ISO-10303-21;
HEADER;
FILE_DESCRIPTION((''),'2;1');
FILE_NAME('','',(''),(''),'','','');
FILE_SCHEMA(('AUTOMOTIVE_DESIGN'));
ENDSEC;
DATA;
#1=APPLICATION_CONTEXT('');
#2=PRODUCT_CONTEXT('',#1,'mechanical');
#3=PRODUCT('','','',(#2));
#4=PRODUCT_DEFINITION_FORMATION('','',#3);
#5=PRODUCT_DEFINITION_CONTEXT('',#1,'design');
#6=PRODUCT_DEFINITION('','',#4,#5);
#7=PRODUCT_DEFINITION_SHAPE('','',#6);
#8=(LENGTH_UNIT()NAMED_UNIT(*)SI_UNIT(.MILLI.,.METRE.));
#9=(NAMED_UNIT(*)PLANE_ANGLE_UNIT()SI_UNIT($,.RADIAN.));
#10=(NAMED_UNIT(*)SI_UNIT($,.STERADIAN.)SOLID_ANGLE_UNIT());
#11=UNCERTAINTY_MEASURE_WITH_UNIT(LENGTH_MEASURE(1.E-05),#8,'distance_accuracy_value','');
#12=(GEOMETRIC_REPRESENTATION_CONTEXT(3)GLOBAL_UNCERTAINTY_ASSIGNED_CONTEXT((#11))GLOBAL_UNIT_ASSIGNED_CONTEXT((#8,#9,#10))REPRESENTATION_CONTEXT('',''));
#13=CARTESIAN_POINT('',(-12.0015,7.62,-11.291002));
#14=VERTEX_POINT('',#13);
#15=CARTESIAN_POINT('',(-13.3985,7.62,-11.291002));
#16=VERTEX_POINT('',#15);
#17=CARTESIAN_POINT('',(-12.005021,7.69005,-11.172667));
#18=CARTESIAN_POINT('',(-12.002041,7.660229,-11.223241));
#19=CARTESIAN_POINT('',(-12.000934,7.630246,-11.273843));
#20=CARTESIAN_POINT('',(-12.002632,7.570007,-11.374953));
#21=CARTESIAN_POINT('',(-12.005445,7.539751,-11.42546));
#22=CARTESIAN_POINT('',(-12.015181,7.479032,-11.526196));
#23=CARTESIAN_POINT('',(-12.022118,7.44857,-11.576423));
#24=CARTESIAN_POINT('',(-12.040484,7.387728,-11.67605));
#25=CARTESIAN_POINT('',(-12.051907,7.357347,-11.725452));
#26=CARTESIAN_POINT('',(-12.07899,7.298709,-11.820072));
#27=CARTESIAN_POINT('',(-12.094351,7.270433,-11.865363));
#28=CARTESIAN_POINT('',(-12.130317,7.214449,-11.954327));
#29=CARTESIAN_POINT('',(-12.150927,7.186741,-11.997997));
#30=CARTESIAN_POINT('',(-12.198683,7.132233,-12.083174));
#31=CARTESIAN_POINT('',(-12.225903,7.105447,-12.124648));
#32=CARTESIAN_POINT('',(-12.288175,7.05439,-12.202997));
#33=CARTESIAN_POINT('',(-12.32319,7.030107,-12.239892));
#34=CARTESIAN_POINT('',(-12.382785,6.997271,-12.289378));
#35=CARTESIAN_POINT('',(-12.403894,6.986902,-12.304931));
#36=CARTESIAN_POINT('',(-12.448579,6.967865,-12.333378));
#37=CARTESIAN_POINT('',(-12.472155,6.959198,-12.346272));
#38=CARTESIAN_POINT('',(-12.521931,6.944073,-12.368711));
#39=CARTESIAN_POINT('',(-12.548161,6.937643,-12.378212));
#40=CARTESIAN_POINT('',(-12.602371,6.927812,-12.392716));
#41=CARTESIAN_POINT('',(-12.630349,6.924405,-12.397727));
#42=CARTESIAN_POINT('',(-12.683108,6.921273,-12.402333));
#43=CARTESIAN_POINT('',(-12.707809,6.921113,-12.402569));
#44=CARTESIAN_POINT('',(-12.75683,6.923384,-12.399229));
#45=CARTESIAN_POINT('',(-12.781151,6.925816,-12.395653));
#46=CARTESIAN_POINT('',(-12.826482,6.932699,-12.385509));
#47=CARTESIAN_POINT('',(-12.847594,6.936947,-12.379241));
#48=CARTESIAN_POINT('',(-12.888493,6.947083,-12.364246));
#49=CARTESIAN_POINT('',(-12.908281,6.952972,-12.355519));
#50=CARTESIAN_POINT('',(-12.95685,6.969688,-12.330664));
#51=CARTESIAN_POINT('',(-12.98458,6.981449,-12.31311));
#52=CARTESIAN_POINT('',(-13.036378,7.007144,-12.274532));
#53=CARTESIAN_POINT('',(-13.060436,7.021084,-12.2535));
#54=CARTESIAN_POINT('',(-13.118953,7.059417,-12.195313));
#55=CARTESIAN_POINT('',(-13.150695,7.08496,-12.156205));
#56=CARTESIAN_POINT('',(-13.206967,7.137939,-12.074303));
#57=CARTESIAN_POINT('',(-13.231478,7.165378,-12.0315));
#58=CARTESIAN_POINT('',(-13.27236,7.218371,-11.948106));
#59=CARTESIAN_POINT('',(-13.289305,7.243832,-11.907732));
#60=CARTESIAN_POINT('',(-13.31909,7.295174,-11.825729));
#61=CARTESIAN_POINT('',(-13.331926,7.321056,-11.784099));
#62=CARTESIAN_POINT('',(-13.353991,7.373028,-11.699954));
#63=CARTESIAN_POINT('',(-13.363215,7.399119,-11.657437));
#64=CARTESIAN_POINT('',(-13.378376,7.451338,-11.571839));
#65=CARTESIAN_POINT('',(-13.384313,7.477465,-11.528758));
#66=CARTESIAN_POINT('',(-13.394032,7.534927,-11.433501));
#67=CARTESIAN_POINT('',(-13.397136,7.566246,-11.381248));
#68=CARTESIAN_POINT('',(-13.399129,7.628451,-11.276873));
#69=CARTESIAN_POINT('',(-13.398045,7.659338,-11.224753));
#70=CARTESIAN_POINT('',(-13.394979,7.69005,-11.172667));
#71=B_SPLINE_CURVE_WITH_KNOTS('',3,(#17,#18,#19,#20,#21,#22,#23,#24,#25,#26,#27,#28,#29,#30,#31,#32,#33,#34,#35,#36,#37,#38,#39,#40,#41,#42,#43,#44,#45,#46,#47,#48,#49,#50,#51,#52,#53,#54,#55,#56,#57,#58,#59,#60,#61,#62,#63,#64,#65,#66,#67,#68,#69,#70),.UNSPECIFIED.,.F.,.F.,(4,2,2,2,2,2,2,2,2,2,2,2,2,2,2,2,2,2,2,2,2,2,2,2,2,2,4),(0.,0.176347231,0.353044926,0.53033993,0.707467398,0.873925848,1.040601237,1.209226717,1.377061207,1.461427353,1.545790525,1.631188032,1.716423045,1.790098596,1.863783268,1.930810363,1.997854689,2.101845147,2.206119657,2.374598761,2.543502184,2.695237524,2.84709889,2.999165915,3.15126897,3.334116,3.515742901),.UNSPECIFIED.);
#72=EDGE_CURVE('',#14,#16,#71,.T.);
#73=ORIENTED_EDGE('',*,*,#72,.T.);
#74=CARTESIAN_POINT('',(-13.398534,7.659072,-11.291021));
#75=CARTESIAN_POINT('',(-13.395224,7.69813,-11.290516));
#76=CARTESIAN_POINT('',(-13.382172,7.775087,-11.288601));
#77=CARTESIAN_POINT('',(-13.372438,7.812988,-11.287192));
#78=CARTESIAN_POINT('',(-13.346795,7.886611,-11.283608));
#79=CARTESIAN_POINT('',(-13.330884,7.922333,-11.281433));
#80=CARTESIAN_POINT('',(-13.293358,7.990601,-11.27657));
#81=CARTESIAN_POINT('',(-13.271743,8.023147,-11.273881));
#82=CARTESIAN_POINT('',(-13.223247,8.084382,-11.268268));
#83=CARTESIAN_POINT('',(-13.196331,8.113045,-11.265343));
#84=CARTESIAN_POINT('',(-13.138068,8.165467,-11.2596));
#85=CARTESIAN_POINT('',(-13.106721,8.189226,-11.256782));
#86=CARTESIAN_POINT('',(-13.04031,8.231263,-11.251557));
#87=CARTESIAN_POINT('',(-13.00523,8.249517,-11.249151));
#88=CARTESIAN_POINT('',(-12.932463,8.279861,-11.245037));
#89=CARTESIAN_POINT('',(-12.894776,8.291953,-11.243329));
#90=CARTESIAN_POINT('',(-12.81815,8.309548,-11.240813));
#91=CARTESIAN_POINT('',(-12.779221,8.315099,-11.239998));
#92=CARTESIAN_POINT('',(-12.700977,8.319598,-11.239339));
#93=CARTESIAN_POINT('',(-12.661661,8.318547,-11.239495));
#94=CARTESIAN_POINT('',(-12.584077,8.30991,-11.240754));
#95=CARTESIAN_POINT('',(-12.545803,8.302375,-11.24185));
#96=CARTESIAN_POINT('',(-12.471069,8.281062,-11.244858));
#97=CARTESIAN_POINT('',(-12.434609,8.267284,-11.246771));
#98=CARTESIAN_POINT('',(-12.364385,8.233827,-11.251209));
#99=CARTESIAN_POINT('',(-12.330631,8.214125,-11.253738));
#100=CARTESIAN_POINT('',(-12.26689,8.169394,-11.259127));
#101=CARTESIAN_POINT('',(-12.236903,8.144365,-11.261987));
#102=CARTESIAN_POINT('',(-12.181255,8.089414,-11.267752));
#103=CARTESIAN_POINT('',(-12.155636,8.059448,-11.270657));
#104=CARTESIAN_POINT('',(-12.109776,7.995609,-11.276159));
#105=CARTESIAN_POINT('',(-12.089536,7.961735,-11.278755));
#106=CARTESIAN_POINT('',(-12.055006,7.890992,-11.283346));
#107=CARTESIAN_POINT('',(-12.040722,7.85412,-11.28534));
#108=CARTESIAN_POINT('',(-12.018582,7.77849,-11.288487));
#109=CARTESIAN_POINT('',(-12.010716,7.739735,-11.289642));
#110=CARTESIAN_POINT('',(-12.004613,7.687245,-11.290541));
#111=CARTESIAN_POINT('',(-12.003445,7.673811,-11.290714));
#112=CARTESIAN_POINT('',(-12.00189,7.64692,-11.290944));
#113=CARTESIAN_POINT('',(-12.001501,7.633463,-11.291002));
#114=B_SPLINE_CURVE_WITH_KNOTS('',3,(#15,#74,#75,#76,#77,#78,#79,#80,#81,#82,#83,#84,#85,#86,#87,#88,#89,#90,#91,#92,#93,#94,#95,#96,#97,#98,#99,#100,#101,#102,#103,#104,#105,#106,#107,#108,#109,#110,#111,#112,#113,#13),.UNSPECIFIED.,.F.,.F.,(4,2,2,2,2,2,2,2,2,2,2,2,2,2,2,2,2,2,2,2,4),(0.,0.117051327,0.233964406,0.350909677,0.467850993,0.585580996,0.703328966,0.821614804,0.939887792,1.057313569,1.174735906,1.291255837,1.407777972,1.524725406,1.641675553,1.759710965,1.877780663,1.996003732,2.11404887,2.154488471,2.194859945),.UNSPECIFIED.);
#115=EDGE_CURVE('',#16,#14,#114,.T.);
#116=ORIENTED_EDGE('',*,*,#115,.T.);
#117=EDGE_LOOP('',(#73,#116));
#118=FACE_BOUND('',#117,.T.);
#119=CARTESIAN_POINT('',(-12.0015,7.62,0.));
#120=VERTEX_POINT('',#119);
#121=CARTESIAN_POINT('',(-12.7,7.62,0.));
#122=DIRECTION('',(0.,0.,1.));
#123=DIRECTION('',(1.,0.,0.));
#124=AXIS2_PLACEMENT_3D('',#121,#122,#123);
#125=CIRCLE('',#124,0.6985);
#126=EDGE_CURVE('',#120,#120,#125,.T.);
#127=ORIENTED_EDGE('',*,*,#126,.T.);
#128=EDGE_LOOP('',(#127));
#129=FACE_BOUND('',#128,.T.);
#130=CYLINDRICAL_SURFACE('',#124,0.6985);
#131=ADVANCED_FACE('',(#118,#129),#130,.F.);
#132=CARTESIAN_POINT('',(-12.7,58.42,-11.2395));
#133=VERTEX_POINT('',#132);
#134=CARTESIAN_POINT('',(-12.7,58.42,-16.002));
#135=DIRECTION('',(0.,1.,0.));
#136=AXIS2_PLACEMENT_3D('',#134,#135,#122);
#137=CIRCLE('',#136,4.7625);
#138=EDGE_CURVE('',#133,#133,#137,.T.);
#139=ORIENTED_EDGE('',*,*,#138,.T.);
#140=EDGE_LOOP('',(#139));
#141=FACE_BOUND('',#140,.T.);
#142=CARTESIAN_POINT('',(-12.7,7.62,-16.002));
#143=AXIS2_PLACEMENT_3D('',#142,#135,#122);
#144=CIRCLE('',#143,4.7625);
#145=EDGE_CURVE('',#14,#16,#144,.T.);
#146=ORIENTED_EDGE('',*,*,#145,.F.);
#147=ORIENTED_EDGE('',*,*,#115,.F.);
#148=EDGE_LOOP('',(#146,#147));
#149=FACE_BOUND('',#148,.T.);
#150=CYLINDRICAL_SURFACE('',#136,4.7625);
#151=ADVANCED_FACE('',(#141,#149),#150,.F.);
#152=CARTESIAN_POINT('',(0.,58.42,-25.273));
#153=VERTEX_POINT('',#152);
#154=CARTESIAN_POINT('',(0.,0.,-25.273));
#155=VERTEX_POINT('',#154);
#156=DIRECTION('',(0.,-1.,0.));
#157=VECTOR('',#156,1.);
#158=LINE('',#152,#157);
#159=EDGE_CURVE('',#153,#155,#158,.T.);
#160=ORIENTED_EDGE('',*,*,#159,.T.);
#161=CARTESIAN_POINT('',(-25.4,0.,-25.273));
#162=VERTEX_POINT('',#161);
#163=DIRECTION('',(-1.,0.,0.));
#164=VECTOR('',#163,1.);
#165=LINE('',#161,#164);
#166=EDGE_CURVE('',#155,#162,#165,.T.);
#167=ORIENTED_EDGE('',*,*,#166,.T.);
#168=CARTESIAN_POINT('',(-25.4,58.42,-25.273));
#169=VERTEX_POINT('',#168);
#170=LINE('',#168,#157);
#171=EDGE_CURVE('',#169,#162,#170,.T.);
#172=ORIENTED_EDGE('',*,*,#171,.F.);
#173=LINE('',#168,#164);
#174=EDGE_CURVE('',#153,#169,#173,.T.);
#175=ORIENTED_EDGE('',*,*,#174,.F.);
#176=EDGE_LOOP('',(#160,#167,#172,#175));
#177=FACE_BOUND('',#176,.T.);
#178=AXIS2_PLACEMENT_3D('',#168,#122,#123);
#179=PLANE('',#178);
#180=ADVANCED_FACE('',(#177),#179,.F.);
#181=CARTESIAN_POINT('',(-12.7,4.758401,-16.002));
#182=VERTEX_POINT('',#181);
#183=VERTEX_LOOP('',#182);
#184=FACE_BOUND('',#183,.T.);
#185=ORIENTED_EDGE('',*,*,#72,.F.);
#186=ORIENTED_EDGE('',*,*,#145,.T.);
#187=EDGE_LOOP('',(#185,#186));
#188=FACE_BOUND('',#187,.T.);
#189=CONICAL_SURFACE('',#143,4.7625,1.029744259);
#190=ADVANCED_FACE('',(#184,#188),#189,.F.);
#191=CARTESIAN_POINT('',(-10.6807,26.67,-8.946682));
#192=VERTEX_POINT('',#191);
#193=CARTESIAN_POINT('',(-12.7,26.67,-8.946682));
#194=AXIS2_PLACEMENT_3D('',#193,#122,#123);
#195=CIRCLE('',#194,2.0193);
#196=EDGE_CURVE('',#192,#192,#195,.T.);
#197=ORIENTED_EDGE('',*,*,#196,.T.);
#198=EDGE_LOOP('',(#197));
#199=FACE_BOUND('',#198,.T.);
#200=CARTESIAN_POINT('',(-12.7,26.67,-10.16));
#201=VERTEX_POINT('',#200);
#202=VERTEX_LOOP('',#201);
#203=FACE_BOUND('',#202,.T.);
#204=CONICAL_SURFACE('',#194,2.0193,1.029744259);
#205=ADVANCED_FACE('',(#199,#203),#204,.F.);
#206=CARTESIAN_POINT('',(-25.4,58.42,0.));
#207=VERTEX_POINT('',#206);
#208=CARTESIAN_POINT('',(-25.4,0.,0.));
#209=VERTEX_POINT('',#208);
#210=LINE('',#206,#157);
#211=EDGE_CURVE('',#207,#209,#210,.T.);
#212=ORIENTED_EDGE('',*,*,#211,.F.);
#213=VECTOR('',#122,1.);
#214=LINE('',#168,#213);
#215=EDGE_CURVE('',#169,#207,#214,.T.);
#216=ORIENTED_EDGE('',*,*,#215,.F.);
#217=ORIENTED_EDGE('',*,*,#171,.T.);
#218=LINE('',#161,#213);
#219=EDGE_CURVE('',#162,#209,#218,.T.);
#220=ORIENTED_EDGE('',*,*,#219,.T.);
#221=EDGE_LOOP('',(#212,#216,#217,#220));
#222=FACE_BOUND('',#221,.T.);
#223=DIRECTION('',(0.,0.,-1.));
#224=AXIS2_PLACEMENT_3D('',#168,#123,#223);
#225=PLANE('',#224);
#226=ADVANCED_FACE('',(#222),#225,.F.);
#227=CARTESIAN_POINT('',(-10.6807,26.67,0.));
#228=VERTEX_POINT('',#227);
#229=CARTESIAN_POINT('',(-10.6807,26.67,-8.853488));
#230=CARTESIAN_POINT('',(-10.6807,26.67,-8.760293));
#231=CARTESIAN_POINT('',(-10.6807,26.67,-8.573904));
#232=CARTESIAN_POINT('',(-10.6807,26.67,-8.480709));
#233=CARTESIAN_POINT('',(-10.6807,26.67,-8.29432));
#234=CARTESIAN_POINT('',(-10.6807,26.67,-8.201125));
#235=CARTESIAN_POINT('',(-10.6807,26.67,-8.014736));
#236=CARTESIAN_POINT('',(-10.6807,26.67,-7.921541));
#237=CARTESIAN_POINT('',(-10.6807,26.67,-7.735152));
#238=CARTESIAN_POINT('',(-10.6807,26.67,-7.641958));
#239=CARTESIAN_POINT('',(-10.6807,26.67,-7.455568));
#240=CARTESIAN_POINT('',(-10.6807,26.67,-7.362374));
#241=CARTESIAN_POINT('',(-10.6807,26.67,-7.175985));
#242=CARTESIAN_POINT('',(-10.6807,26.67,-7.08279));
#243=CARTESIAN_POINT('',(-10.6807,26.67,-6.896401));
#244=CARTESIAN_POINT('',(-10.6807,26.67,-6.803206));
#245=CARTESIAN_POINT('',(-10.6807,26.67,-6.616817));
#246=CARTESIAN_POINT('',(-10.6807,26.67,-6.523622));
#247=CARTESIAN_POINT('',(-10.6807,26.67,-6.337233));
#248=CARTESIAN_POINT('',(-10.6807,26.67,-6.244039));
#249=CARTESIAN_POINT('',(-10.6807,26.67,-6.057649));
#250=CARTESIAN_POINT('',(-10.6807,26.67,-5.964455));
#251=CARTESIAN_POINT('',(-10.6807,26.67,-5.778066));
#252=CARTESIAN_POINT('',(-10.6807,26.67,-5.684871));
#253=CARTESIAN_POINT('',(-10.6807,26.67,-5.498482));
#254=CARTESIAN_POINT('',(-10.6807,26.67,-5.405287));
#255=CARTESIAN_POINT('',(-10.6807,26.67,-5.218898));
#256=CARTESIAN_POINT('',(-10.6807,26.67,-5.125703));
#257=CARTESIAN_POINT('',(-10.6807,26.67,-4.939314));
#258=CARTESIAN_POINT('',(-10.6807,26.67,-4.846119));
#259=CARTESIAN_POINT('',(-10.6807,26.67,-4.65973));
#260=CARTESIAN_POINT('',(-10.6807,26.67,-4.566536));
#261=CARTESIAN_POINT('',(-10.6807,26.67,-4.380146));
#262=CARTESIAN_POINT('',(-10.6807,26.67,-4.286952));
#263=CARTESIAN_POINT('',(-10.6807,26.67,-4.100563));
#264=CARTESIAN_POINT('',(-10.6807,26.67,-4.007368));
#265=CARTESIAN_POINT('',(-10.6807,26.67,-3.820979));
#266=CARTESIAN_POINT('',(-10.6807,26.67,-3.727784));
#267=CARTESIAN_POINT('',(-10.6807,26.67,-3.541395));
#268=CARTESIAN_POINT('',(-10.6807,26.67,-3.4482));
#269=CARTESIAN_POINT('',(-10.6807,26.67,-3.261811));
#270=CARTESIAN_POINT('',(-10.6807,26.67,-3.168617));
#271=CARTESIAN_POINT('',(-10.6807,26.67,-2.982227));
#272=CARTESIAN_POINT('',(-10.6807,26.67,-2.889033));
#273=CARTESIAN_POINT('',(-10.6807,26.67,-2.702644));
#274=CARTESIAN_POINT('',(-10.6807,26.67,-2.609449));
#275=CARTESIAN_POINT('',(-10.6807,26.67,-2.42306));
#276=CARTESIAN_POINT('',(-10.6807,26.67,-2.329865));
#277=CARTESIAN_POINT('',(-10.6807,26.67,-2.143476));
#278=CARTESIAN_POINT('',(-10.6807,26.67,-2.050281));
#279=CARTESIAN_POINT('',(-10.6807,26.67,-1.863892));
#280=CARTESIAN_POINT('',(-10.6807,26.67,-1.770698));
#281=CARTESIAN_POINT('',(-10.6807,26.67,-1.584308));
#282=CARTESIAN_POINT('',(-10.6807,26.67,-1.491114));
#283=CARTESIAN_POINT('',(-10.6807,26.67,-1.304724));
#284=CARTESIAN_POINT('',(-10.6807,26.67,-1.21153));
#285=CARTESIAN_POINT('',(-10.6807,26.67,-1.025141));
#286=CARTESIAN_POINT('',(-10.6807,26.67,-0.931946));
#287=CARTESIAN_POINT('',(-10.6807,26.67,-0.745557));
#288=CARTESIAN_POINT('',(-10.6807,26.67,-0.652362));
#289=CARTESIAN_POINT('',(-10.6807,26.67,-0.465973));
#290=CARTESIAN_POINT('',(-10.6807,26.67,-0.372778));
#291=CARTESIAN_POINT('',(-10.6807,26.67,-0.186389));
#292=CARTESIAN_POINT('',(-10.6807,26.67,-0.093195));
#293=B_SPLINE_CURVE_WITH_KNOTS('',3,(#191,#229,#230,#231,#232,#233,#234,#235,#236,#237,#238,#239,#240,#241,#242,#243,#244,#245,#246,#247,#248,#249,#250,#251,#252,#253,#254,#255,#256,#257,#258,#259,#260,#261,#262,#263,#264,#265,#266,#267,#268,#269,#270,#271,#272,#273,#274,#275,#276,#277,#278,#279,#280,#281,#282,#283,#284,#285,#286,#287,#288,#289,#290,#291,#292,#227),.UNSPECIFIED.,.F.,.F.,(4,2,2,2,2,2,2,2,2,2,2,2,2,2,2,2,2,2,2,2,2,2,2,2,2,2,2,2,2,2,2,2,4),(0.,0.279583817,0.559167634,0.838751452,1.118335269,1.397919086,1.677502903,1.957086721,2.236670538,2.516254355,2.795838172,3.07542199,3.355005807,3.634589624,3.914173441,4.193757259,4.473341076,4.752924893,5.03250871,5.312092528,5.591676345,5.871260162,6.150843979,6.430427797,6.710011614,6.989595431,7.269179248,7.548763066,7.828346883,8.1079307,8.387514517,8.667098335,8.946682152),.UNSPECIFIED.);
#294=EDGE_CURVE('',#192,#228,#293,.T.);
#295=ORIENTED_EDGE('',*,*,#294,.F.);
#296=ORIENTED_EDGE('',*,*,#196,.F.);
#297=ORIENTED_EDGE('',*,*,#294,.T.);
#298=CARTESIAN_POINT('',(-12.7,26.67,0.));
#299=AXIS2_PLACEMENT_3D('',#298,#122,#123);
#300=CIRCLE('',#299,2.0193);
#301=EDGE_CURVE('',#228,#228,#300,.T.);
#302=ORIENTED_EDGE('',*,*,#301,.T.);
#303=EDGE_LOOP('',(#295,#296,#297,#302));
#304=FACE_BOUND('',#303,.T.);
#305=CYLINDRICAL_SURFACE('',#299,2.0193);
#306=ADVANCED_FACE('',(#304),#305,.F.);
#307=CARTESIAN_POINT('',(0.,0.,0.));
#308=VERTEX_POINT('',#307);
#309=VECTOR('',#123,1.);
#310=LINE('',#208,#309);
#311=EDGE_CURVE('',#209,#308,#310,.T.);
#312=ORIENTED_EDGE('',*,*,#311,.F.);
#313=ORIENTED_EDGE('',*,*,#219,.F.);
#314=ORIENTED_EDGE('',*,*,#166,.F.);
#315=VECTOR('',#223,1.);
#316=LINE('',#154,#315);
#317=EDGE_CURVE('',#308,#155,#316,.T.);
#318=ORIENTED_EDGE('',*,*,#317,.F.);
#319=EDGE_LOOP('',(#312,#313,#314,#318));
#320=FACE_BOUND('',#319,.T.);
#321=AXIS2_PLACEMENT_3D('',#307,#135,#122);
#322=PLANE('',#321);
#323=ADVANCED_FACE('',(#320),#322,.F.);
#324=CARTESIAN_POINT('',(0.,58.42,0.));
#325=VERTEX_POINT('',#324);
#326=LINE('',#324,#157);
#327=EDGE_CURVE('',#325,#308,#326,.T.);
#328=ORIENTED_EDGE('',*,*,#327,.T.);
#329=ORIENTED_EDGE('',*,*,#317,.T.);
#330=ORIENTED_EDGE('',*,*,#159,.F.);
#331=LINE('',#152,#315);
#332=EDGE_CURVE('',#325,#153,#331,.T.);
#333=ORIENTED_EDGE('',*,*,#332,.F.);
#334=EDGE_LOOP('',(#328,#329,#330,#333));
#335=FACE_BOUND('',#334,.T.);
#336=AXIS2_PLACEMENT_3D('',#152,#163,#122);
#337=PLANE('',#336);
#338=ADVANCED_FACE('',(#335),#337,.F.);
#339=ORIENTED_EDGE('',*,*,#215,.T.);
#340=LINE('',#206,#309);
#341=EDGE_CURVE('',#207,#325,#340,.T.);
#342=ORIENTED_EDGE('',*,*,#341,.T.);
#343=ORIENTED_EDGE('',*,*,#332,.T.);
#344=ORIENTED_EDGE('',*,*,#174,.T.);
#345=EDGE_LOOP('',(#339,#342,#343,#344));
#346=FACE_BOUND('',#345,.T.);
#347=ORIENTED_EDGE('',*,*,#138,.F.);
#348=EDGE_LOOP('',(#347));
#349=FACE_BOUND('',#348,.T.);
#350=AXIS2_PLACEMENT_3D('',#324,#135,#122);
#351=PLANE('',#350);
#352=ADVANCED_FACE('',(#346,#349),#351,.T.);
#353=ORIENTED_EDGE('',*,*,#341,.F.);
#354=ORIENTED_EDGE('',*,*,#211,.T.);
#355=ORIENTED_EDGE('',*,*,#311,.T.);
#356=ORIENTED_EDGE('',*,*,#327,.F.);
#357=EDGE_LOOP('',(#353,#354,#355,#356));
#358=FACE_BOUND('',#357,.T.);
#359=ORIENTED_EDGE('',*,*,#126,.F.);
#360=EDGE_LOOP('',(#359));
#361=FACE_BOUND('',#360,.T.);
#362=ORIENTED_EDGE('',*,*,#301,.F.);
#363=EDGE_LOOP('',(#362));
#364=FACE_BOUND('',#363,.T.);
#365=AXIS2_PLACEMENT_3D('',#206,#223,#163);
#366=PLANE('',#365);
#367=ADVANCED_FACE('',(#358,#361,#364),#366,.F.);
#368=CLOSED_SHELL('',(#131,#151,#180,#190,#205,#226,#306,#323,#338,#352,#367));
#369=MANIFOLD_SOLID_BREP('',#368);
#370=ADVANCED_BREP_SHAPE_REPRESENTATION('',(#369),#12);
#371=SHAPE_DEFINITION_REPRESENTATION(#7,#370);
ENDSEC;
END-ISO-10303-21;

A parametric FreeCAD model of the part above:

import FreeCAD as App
import Part
import Sketcher
Q = App.Units.Quantity


def add_polygon(sketch, points):
    """Adds a closed chain of lines whose ends are joined by coincident constraints."""
    first, n = sketch.GeometryCount, len(points)
    for a, b in zip(points, points[1:] + points[:1]):
        sketch.addGeometry(Part.LineSegment(App.Vector(*a, 0), App.Vector(*b, 0)), False)
    for i in range(n):
        sketch.addConstraint(Sketcher.Constraint("Coincident", first + i, 2, first + (i + 1) % n, 1))

doc = App.newDocument("Part")
body = doc.addObject("PartDesign::Body", "Body")

# Sketch on XZ plane
sketch1 = doc.addObject("Sketcher::SketchObject", "Sketch")
body.addObject(sketch1)
sketch1.AttachmentSupport = (doc.XZ_Plane, [""])
sketch1.MapMode = "FlatFace"
add_polygon(sketch1, [(-25.4, -25.273), (-25.4, 0), (0, 0), (0, -25.273)])  # lines 0-3
sketch1.addConstraint(Sketcher.Constraint("Vertical", 0))
sketch1.addConstraint(Sketcher.Constraint("Horizontal", 1))
sketch1.addConstraint(Sketcher.Constraint("Vertical", 2))
sketch1.addConstraint(Sketcher.Constraint("Horizontal", 3))
sketch1.addConstraint(Sketcher.Constraint("Coincident", 1, 2, -1, 1))
sketch1.addConstraint(Sketcher.Constraint("DistanceX", 1, 1, 1, 2, Q("1 in")))
sketch1.addConstraint(Sketcher.Constraint("DistanceY", 0, 1, 0, 2, Q("0.995 in")))
pad1 = doc.addObject("PartDesign::Pad", "Pad")
body.addObject(pad1)
pad1.Profile = sketch1
pad1.Length = Q("2.3 in")
pad1.Reversed = True

# Sketch on XY plane
sketch2 = doc.addObject("Sketcher::SketchObject", "Sketch001")
body.addObject(sketch2)
sketch2.AttachmentSupport = (doc.XY_Plane, [""])
sketch2.MapMode = "FlatFace"
sketch2.addGeometry(Part.Circle(App.Vector(-12.7, 7.62, 0), App.Vector(0, 0, 1), 0.6985), False)
sketch2.addConstraint(Sketcher.Constraint("Diameter", 0, Q("0.055 in")))
sketch2.addConstraint(Sketcher.Constraint("DistanceX", 0, 3, -1, 1, Q("0.5 in")))
sketch2.addConstraint(Sketcher.Constraint("DistanceY", -1, 1, 0, 3, Q("0.3 in")))
doc.recompute()
hole = doc.addObject("PartDesign::Hole", "Hole")
body.addObject(hole)
hole.Profile = sketch2
hole.ThreadType = "None"
hole.Diameter = Q("0.055 in")
hole.DepthType = "Dimension"
hole.Depth = Q("0.5 in")
hole.DrillPoint = "Angled"
hole.DrillPointAngle = 118

# Sketch on XZ plane
sketch3 = doc.addObject("Sketcher::SketchObject", "Sketch002")
body.addObject(sketch3)
sketch3.AttachmentSupport = (doc.XZ_Plane, [""])
sketch3.MapMode = "FlatFace"
sketch3.AttachmentOffset = App.Placement(App.Vector(0, 0, -2.3 * 25.4), App.Rotation())
sketch3.addGeometry(Part.Circle(App.Vector(-12.7, -16.002, 0), App.Vector(0, 0, 1), 4.7625), False)
sketch3.addConstraint(Sketcher.Constraint("Diameter", 0, Q("0.375 in")))
sketch3.addConstraint(Sketcher.Constraint("DistanceX", 0, 3, -1, 1, Q("0.5 in")))
sketch3.addConstraint(Sketcher.Constraint("DistanceY", 0, 3, -1, 1, Q("0.63 in")))
doc.recompute()
hole2 = doc.addObject("PartDesign::Hole", "Hole001")
body.addObject(hole2)
hole2.Profile = sketch3
hole2.ThreadType = "None"
hole2.Diameter = Q("0.375 in")
hole2.DepthType = "Dimension"
hole2.Depth = Q("2 in")
hole2.DrillPoint = "Angled"
hole2.DrillPointAngle = 118
hole2.Reversed = True

# Sketch on XY plane
sketch4 = doc.addObject("Sketcher::SketchObject", "Sketch003")
body.addObject(sketch4)
sketch4.AttachmentSupport = (doc.XY_Plane, [""])
sketch4.MapMode = "FlatFace"
sketch4.addGeometry(Part.Circle(App.Vector(-12.7, 26.67, 0), App.Vector(0, 0, 1), 2.0193), False)
sketch4.addConstraint(Sketcher.Constraint("Diameter", 0, Q("0.159 in")))
sketch4.addConstraint(Sketcher.Constraint("DistanceX", 0, 3, -1, 1, Q("0.5 in")))
sketch4.addConstraint(Sketcher.Constraint("DistanceY", -1, 1, 0, 3, Q("1.05 in")))
doc.recompute()
hole3 = doc.addObject("PartDesign::Hole", "Hole002")
body.addObject(hole3)
hole3.Profile = sketch4
hole3.ThreadType = "None"
hole3.Diameter = Q("0.159 in")
hole3.DepthType = "Dimension"
hole3.Depth = 8.946682
hole3.DrillPoint = "Angled"
hole3.DrillPointAngle = 118

doc.recompute()
